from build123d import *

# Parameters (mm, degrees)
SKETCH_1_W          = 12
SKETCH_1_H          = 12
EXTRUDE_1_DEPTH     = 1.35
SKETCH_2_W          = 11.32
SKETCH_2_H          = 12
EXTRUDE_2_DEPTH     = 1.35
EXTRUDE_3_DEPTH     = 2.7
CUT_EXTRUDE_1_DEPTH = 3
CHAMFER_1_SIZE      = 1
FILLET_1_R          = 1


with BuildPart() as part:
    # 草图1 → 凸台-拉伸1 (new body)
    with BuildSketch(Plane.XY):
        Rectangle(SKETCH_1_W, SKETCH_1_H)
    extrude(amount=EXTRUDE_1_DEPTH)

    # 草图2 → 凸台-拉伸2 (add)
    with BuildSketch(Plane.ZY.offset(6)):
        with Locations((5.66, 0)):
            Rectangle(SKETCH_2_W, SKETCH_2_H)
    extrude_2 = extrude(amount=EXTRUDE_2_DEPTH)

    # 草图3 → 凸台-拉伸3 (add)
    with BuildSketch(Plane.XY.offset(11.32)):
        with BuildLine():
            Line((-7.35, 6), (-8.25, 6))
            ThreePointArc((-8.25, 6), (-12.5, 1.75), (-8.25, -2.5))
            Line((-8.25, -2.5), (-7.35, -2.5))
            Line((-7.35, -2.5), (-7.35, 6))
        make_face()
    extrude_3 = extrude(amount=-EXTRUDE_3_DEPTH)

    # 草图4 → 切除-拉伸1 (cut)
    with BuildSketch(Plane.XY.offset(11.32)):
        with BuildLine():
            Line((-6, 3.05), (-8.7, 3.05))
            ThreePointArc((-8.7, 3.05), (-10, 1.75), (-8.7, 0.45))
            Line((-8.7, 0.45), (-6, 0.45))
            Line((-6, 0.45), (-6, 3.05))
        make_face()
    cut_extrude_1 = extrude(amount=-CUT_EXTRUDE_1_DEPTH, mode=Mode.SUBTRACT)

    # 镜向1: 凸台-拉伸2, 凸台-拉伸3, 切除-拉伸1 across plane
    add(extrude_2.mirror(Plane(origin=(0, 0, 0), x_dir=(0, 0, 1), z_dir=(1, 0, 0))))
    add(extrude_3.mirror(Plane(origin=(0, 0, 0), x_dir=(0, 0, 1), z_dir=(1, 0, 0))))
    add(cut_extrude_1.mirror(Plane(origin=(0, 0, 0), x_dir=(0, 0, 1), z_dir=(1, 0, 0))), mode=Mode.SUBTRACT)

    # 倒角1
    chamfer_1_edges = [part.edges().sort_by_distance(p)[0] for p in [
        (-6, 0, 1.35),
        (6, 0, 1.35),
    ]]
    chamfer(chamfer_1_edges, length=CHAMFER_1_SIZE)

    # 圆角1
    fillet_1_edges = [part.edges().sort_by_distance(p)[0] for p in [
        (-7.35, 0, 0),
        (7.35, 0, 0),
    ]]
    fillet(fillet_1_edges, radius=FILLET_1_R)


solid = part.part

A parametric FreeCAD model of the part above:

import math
import FreeCAD as App
import Part
import Sketcher
from FreeCAD import Vector
Q = App.Units.Quantity


def edges_at(feature, points):
    """Names of the edges that pass closest to the given points."""
    edges = feature.Shape.Edges
    near = lambda p: min(range(len(edges)), key=lambda i: edges[i].distToShape(Part.Vertex(*p))[0])
    return sorted({f"Edge{near(p) + 1}" for p in points})

doc = App.newDocument("Part")
body = doc.addObject("PartDesign::Body", "Body")

# Sketch on XY plane
sketch1 = body.newObject("Sketcher::SketchObject", "Sketch")
sketch1.AttachmentSupport = (doc.getObject("XY_Plane"), [""])
sketch1.MapMode = "FlatFace"
sketch1.addGeometry([
    Part.LineSegment(Vector(-6, 6, 0), Vector(-6, -6, 0)),
    Part.LineSegment(Vector(-6, -6, 0), Vector(6, -6, 0)),
    Part.LineSegment(Vector(6, -6, 0), Vector(6, 6, 0)),
    Part.LineSegment(Vector(6, 6, 0), Vector(-6, 6, 0)),
], False)
sketch1.addConstraint([
    Sketcher.Constraint("Coincident", 0, 2, 1, 1),
    Sketcher.Constraint("Coincident", 1, 2, 2, 1),
    Sketcher.Constraint("Coincident", 2, 2, 3, 1),
    Sketcher.Constraint("Coincident", 3, 2, 0, 1),
    Sketcher.Constraint("Vertical", 0),
    Sketcher.Constraint("Horizontal", 1),
    Sketcher.Constraint("Vertical", 2),
    Sketcher.Constraint("Horizontal", 3),
    Sketcher.Constraint("Symmetric", 0, 2, 2, 2, -1, 1),
    Sketcher.Constraint("Equal", 3, 0),
    Sketcher.Constraint("DistanceX", 1, 1, 1, 2, Q("12 mm")),
])
pad1 = body.newObject("PartDesign::Pad", "Pad")
pad1.Profile = sketch1
pad1.Length = 1.35

# Sketch on YZ plane
sketch2 = body.newObject("Sketcher::SketchObject", "Sketch001")
sketch2.AttachmentSupport = (doc.getObject("YZ_Plane"), [""])
sketch2.MapMode = "FlatFace"
sketch2.AttachmentOffset = App.Placement(Vector(0, 0, -6), App.Rotation())
sketch2.addGeometry([
    Part.LineSegment(Vector(6, 0, 0), Vector(-6, 0, 0)),
    Part.LineSegment(Vector(-6, 0, 0), Vector(-6, 11.32, 0)),
    Part.LineSegment(Vector(-6, 11.32, 0), Vector(6, 11.32, 0)),
    Part.LineSegment(Vector(6, 11.32, 0), Vector(6, 0, 0)),
], False)
sketch2.addConstraint([
    Sketcher.Constraint("Coincident", 0, 2, 1, 1),
    Sketcher.Constraint("Coincident", 1, 2, 2, 1),
    Sketcher.Constraint("Coincident", 2, 2, 3, 1),
    Sketcher.Constraint("Coincident", 3, 2, 0, 1),
    Sketcher.Constraint("Horizontal", 0),
    Sketcher.Constraint("Vertical", 1),
    Sketcher.Constraint("Horizontal", 2),
    Sketcher.Constraint("Vertical", 3),
    Sketcher.Constraint("Symmetric", 0, 2, 3, 2, -1, 1),
    Sketcher.Constraint("DistanceX", 0, 2, 0, 1, Q("12 mm")),
    Sketcher.Constraint("DistanceY", 1, 1, 1, 2, Q("11.32 mm")),
])
pad2 = body.newObject("PartDesign::Pad", "Pad001")
pad2.Profile = sketch2
pad2.Length = 1.35
pad2.Reversed = True

# Sketch on XY plane
sketch3 = body.newObject("Sketcher::SketchObject", "Sketch002")
sketch3.AttachmentSupport = (doc.getObject("XY_Plane"), [""])
sketch3.MapMode = "FlatFace"
sketch3.AttachmentOffset = App.Placement(Vector(0, 0, 11.32), App.Rotation())
sketch3.addGeometry([
    Part.LineSegment(Vector(-7.35, 6, 0), Vector(-8.25, 6, 0)),
    Part.ArcOfCircle(Part.Circle(Vector(-8.25, 1.75, 0), Vector(0, 0, 1), 4.25), math.radians(90), math.radians(270)),
    Part.LineSegment(Vector(-8.25, -2.5, 0), Vector(-7.35, -2.5, 0)),
    Part.LineSegment(Vector(-7.35, -2.5, 0), Vector(-7.35, 6, 0)),
], False)
sketch3.addConstraint([
    Sketcher.Constraint("Tangent", 0, 2, 1, 1),
    Sketcher.Constraint("Tangent", 1, 2, 2, 1),
    Sketcher.Constraint("Coincident", 2, 2, 3, 1),
    Sketcher.Constraint("Coincident", 3, 2, 0, 1),
    Sketcher.Constraint("Horizontal", 0),
    Sketcher.Constraint("Horizontal", 2),
    Sketcher.Constraint("Vertical", 3),
    Sketcher.Constraint("Radius", 1, Q("4.25 mm")),
    Sketcher.Constraint("DistanceX", 0, 2, 0, 1, Q("0.9 mm")),
    Sketcher.Constraint("DistanceY", -1, 1, 0, 2, Q("6 mm")),
    Sketcher.Constraint("DistanceX", 1, 3, -1, 1, Q("8.25 mm")),
])
pad3 = body.newObject("PartDesign::Pad", "Pad002")
pad3.Profile = sketch3
pad3.Length = 2.7
pad3.Reversed = True

# Sketch on XY plane
sketch4 = body.newObject("Sketcher::SketchObject", "Sketch003")
sketch4.AttachmentSupport = (doc.getObject("XY_Plane"), [""])
sketch4.MapMode = "FlatFace"
sketch4.AttachmentOffset = App.Placement(Vector(0, 0, 11.32), App.Rotation())
sketch4.addGeometry([
    Part.LineSegment(Vector(-6, 3.05, 0), Vector(-8.7, 3.05, 0)),
    Part.ArcOfCircle(Part.Circle(Vector(-8.7, 1.75, 0), Vector(0, 0, 1), 1.3), math.radians(90), math.radians(270)),
    Part.LineSegment(Vector(-8.7, 0.45, 0), Vector(-6, 0.45, 0)),
    Part.LineSegment(Vector(-6, 0.45, 0), Vector(-6, 3.05, 0)),
], False)
sketch4.addConstraint([
    Sketcher.Constraint("Tangent", 0, 2, 1, 1),
    Sketcher.Constraint("Tangent", 1, 2, 2, 1),
    Sketcher.Constraint("Coincident", 2, 2, 3, 1),
    Sketcher.Constraint("Coincident", 3, 2, 0, 1),
    Sketcher.Constraint("Horizontal", 0),
    Sketcher.Constraint("Horizontal", 2),
    Sketcher.Constraint("Vertical", 3),
    Sketcher.Constraint("Radius", 1, Q("1.3 mm")),
    Sketcher.Constraint("DistanceX", 0, 2, 0, 1, Q("2.7 mm")),
    Sketcher.Constraint("DistanceX", 2, 2, -1, 1, Q("6 mm")),
    Sketcher.Constraint("DistanceY", -1, 1, 1, 3, Q("1.75 mm")),
])
pocket1 = body.newObject("PartDesign::Pocket", "Pocket")
pocket1.Profile = sketch4
pocket1.Length = 3
doc.recompute()

mirrored = body.newObject("PartDesign::Mirrored", "Mirrored")
mirrored.Originals = [pad2, pad3, pocket1]
mirrored.MirrorPlane = (doc.getObject("YZ_Plane"), [""])
body.Tip = mirrored
doc.recompute()

chamfer = body.newObject("PartDesign::Chamfer", "Chamfer")
chamfer.Base = (mirrored, edges_at(mirrored, [(-6, 0, 1.35), (6, 0, 1.35)]))
chamfer.Size = 1
doc.recompute()

fillet = body.newObject("PartDesign::Fillet", "Fillet")
fillet.Base = (chamfer, edges_at(chamfer, [(-7.35, 0, 0), (7.35, 0, 0)]))
fillet.Radius = 1

doc.recompute()
